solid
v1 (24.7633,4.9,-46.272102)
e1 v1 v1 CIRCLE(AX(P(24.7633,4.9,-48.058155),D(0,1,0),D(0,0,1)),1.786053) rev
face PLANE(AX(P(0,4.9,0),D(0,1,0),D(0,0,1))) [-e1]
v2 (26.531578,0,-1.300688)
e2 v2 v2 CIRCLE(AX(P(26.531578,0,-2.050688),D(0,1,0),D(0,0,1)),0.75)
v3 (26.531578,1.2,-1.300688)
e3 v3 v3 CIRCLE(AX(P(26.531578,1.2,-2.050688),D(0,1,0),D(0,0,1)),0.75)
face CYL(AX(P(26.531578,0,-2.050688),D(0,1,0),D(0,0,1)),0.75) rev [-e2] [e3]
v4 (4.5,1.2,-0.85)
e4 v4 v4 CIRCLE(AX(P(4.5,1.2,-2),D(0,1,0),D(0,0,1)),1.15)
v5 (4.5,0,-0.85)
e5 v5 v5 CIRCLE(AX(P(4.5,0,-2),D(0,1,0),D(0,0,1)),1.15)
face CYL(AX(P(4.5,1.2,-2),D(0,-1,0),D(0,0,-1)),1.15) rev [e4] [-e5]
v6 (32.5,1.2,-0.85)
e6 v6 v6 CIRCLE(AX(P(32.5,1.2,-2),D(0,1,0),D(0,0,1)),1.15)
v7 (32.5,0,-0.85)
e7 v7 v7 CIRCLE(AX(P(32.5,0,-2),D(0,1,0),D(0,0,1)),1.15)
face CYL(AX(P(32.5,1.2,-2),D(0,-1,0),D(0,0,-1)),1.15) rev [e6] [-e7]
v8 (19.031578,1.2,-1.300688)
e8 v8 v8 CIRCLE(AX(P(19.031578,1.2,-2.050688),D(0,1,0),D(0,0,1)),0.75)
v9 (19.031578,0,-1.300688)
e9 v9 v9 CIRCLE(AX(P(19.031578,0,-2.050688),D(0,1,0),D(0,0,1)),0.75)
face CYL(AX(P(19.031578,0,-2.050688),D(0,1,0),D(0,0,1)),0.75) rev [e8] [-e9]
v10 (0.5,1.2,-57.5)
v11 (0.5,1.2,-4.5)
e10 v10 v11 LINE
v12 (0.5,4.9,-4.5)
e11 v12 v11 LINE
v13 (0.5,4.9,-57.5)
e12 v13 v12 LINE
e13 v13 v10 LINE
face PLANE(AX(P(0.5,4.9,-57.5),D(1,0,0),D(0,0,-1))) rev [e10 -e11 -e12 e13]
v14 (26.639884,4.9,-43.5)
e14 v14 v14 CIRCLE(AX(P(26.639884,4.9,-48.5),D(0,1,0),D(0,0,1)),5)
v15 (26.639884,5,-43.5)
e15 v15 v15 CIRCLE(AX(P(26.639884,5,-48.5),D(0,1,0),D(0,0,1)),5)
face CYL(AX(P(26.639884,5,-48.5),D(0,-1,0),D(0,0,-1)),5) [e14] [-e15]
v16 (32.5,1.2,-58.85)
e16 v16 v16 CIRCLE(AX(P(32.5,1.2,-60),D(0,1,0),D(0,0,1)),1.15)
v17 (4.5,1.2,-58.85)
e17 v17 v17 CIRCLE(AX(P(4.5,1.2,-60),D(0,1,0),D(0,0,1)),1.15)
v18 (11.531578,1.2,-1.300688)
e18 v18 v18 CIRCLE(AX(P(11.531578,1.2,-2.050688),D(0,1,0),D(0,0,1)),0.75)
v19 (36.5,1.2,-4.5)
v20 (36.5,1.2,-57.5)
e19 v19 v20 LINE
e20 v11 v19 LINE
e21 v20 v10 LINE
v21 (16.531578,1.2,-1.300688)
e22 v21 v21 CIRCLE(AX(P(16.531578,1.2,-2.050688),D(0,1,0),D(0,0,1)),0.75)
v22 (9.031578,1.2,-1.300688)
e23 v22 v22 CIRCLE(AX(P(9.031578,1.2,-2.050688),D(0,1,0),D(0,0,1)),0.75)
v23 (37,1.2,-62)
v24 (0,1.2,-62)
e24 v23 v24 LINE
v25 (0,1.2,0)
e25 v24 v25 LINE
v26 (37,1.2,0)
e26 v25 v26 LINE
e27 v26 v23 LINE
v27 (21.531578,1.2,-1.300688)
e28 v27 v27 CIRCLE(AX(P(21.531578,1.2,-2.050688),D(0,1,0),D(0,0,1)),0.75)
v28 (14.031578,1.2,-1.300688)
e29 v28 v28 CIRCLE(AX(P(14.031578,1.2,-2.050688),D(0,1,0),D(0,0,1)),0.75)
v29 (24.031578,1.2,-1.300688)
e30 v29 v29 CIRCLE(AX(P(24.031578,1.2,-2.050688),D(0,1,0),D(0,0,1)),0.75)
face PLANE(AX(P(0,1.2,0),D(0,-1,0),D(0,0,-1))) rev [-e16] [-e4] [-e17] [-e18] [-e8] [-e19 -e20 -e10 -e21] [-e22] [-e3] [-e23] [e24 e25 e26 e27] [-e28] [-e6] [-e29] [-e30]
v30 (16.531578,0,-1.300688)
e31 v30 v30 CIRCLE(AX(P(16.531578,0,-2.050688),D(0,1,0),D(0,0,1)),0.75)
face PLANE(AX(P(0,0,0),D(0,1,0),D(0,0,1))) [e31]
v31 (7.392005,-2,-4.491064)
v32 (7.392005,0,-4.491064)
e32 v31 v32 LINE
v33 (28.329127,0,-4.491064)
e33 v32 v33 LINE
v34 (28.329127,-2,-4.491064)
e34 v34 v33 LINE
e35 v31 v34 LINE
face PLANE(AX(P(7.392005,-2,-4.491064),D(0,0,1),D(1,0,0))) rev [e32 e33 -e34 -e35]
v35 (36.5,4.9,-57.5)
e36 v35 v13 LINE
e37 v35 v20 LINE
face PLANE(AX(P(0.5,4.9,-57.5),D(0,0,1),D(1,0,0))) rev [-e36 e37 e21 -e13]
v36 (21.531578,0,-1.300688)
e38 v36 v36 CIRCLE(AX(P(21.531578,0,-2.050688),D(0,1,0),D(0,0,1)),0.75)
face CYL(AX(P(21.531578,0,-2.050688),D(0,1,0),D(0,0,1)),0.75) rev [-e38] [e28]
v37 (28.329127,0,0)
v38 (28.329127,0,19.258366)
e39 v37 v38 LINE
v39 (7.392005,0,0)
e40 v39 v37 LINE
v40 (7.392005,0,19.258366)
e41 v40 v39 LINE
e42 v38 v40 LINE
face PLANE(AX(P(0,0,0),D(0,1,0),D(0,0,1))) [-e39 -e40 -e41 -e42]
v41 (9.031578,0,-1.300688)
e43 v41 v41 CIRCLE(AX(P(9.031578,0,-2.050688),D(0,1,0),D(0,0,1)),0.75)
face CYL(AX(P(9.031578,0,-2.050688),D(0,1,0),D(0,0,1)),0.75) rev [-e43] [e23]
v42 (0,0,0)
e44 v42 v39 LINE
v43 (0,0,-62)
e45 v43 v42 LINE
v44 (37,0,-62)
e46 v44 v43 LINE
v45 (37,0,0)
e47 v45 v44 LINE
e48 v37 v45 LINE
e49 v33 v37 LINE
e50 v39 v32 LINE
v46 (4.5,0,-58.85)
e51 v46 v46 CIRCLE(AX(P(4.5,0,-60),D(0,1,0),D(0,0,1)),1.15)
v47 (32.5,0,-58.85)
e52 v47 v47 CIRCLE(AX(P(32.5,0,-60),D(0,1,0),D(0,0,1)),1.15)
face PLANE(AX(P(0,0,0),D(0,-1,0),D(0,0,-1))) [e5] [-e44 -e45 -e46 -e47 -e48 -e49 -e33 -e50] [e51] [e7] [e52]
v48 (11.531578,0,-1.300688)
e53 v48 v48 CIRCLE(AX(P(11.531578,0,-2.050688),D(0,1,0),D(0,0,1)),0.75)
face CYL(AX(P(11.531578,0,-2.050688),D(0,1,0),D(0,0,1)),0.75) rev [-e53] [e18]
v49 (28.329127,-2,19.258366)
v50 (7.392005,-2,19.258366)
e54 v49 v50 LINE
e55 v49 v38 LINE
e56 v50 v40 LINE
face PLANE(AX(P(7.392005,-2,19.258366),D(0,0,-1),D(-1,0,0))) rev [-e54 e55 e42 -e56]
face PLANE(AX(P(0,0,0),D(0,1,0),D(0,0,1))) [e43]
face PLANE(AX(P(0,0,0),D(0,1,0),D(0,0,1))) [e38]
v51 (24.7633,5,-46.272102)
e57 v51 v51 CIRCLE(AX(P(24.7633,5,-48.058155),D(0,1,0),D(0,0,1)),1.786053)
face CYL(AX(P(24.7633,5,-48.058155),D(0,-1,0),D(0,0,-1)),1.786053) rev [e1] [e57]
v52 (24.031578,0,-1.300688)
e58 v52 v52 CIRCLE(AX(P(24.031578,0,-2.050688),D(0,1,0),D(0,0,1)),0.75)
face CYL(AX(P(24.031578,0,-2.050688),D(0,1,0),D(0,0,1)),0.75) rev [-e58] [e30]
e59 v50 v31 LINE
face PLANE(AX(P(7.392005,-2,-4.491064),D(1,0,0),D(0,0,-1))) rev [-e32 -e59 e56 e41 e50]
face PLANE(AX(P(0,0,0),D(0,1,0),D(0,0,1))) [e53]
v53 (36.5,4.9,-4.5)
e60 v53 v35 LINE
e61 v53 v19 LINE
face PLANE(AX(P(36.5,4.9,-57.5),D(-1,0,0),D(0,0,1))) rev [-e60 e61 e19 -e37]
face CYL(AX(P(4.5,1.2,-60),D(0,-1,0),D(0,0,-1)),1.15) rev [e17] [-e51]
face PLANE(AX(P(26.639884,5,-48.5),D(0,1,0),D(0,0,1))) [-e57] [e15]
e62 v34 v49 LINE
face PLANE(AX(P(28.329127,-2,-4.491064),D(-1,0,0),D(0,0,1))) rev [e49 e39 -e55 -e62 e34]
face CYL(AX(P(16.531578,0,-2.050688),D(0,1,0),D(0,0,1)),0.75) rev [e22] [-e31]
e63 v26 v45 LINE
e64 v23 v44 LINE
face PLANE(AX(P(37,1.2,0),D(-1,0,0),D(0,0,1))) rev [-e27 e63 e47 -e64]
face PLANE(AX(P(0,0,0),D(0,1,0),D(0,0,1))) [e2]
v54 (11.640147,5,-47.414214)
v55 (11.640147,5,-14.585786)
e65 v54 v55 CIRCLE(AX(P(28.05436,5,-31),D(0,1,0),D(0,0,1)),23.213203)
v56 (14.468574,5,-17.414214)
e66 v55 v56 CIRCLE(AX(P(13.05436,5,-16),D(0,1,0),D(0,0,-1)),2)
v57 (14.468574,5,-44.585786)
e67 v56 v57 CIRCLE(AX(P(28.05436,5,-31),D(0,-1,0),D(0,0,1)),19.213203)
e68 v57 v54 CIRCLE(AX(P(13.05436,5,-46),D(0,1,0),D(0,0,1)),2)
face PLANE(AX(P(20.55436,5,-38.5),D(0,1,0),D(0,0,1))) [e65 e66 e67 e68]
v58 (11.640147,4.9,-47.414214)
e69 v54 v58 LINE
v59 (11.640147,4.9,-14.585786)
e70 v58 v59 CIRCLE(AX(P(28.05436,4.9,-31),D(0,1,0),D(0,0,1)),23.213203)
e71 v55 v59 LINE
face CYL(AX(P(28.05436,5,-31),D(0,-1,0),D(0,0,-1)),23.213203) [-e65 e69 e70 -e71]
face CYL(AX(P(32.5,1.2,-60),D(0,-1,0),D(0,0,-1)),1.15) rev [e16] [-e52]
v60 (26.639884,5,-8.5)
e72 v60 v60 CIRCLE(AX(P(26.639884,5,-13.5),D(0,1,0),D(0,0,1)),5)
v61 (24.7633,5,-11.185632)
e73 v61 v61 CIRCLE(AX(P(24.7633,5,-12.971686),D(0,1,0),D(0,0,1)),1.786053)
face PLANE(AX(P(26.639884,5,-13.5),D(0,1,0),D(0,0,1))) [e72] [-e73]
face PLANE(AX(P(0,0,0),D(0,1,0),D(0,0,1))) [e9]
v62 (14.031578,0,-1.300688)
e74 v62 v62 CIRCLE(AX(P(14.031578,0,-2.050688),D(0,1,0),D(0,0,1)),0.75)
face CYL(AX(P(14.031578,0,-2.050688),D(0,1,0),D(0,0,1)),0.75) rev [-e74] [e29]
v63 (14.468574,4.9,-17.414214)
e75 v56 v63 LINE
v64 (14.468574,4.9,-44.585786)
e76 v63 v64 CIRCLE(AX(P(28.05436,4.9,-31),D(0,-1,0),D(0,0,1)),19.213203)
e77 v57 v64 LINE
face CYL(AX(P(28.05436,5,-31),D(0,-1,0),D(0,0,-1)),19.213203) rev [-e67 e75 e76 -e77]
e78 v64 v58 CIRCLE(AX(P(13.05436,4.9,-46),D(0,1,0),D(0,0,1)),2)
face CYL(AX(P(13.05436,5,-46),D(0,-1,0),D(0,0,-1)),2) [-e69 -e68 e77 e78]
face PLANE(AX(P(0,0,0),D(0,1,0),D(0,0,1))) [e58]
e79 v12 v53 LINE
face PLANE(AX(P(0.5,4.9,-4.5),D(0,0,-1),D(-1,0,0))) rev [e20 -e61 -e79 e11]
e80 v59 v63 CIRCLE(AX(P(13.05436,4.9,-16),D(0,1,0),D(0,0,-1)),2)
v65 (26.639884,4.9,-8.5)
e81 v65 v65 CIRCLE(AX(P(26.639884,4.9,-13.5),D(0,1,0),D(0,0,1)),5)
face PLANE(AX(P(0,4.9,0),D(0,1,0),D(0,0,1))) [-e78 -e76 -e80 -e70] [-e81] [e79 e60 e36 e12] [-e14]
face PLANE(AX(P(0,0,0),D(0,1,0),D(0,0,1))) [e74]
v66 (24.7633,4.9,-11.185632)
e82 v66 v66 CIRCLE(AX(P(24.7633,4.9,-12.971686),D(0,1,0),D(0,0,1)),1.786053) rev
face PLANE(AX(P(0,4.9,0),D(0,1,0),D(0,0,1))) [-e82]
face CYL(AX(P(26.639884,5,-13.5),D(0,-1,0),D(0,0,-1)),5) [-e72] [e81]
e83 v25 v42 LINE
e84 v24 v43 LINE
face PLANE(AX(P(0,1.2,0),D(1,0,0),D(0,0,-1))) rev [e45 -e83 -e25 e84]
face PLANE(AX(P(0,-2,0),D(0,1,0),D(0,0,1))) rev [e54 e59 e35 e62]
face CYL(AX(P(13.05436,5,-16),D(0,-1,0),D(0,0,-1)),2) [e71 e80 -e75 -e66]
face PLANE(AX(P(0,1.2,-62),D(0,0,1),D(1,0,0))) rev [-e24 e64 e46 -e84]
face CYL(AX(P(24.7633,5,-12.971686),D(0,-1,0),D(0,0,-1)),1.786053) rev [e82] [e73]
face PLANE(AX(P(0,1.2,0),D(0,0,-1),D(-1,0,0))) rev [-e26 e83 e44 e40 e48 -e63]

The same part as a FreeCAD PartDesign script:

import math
import FreeCAD as App
import Part
import Sketcher

V = App.Vector


def add_polygon(sketch, points):
    """Adds a closed chain of lines whose ends are joined by coincident constraints."""
    first, n = sketch.GeometryCount, len(points)
    for a, b in zip(points, points[1:] + points[:1]):
        sketch.addGeometry(Part.LineSegment(App.Vector(*a, 0), App.Vector(*b, 0)), False)
    for i in range(n):
        sketch.addConstraint(Sketcher.Constraint("Coincident", first + i, 2, first + (i + 1) % n, 1))

doc = App.newDocument("Part")
body = doc.addObject("PartDesign::Body", "Body")

# Sketch on XZ plane
sketch1 = doc.addObject("Sketcher::SketchObject", "Sketch")
body.addObject(sketch1)
sketch1.AttachmentSupport = (doc.XZ_Plane, [""])
sketch1.MapMode = "FlatFace"
add_polygon(sketch1, [(0, -62), (0, 0), (37, 0), (37, -62)])  # lines 0-3
sketch1.addGeometry(Part.Circle(V(4.5, -2, 0), V(0, 0, 1), 1.15), False)  # 4
sketch1.addGeometry(Part.Circle(V(32.5, -2, 0), V(0, 0, 1), 1.15), False)  # 5
sketch1.addGeometry(Part.Circle(V(4.5, -60, 0), V(0, 0, 1), 1.15), False)  # 6
sketch1.addGeometry(Part.Circle(V(32.5, -60, 0), V(0, 0, 1), 1.15), False)  # 7
sketch1.addConstraint(Sketcher.Constraint("Vertical", 0))
sketch1.addConstraint(Sketcher.Constraint("Horizontal", 1))
sketch1.addConstraint(Sketcher.Constraint("Vertical", 2))
sketch1.addConstraint(Sketcher.Constraint("Horizontal", 3))
sketch1.addConstraint(Sketcher.Constraint("Coincident", 0, 2, -1, 1))
sketch1.addConstraint(Sketcher.Constraint("Equal", 4, 5))
sketch1.addConstraint(Sketcher.Constraint("Equal", 5, 6))
sketch1.addConstraint(Sketcher.Constraint("Equal", 6, 7))
sketch1.addConstraint(Sketcher.Constraint("Horizontal", 4, 3, 5, 3))
sketch1.addConstraint(Sketcher.Constraint("Horizontal", 6, 3, 7, 3))
sketch1.addConstraint(Sketcher.Constraint("Vertical", 4, 3, 6, 3))
sketch1.addConstraint(Sketcher.Constraint("Vertical", 5, 3, 7, 3))
sketch1.addConstraint(Sketcher.Constraint("Diameter", 4, 2.3))
sketch1.addConstraint(Sketcher.Constraint("DistanceX", 1, 1, 1, 2, 37.0))
sketch1.addConstraint(Sketcher.Constraint("DistanceY", 0, 1, 0, 2, 62.0))
sketch1.addConstraint(Sketcher.Constraint("DistanceY", 4, 3, -1, 1, 2.0))
sketch1.addConstraint(Sketcher.Constraint("DistanceY", 6, 3, -1, 1, 60.0))
sketch1.addConstraint(Sketcher.Constraint("DistanceX", 4, 3, 5, 3, 28.0))
sketch1.addConstraint(Sketcher.Constraint("DistanceX", -1, 1, 4, 3, 4.5))
pad1 = doc.addObject("PartDesign::Pad", "Pad")
body.addObject(pad1)
pad1.Profile = sketch1
pad1.Length = 1.2
pad1.Reversed = True

# Sketch on XZ plane
sketch2 = doc.addObject("Sketcher::SketchObject", "Sketch001")
body.addObject(sketch2)
sketch2.AttachmentSupport = (doc.XZ_Plane, [""])
sketch2.MapMode = "FlatFace"
sketch2.AttachmentOffset = App.Placement(V(0, 0, -1.2), App.Rotation())
add_polygon(sketch2, [(0.5, -57.5), (0.5, -4.5), (36.5, -4.5), (36.5, -57.5)])  # lines 0-3
sketch2.addConstraint(Sketcher.Constraint("Vertical", 0))
sketch2.addConstraint(Sketcher.Constraint("Horizontal", 1))
sketch2.addConstraint(Sketcher.Constraint("Vertical", 2))
sketch2.addConstraint(Sketcher.Constraint("Horizontal", 3))
sketch2.addConstraint(Sketcher.Constraint("DistanceX", 1, 1, 1, 2, 36.0))
sketch2.addConstraint(Sketcher.Constraint("DistanceY", 0, 1, 0, 2, 53.0))
sketch2.addConstraint(Sketcher.Constraint("DistanceX", -1, 1, 0, 2, 0.5))
sketch2.addConstraint(Sketcher.Constraint("DistanceY", 0, 2, -1, 1, 4.5))
pad2 = doc.addObject("PartDesign::Pad", "Pad001")
body.addObject(pad2)
pad2.Profile = sketch2
pad2.Length = 3.7
pad2.Reversed = True

# Sketch on XZ plane
sketch3 = doc.addObject("Sketcher::SketchObject", "Sketch002")
body.addObject(sketch3)
sketch3.AttachmentSupport = (doc.XZ_Plane, [""])
sketch3.MapMode = "FlatFace"
sketch3.AttachmentOffset = App.Placement(V(0, 0, -1.2), App.Rotation())
sketch3.addGeometry(Part.Circle(V(9.031578, -2.050688, 0), V(0, 0, 1), 0.75), False)
sketch3.addGeometry(Part.Circle(V(11.531578, -2.050688, 0), V(0, 0, 1), 0.75), False)
sketch3.addGeometry(Part.Circle(V(14.031578, -2.050688, 0), V(0, 0, 1), 0.75), False)
sketch3.addGeometry(Part.Circle(V(16.531578, -2.050688, 0), V(0, 0, 1), 0.75), False)
sketch3.addGeometry(Part.Circle(V(19.031578, -2.050688, 0), V(0, 0, 1), 0.75), False)
sketch3.addGeometry(Part.Circle(V(21.531578, -2.050688, 0), V(0, 0, 1), 0.75), False)
sketch3.addGeometry(Part.Circle(V(24.031578, -2.050688, 0), V(0, 0, 1), 0.75), False)
sketch3.addGeometry(Part.Circle(V(26.531578, -2.050688, 0), V(0, 0, 1), 0.75), False)
sketch3.addConstraint(Sketcher.Constraint("Equal", 0, 1))
sketch3.addConstraint(Sketcher.Constraint("Equal", 1, 2))
sketch3.addConstraint(Sketcher.Constraint("Equal", 2, 3))
sketch3.addConstraint(Sketcher.Constraint("Equal", 3, 4))
sketch3.addConstraint(Sketcher.Constraint("Equal", 4, 5))
sketch3.addConstraint(Sketcher.Constraint("Equal", 5, 6))
sketch3.addConstraint(Sketcher.Constraint("Equal", 6, 7))
sketch3.addConstraint(Sketcher.Constraint("Horizontal", 0, 3, 1, 3))
sketch3.addConstraint(Sketcher.Constraint("Horizontal", 1, 3, 2, 3))
sketch3.addConstraint(Sketcher.Constraint("Horizontal", 2, 3, 3, 3))
sketch3.addConstraint(Sketcher.Constraint("Horizontal", 3, 3, 4, 3))
sketch3.addConstraint(Sketcher.Constraint("Horizontal", 4, 3, 5, 3))
sketch3.addConstraint(Sketcher.Constraint("Horizontal", 5, 3, 6, 3))
sketch3.addConstraint(Sketcher.Constraint("Horizontal", 6, 3, 7, 3))
sketch3.addConstraint(Sketcher.Constraint("Diameter", 0, 1.5))
sketch3.addConstraint(Sketcher.Constraint("DistanceX", 0, 3, 2, 3, 5.0))
sketch3.addConstraint(Sketcher.Constraint("DistanceX", 1, 3, 3, 3, 5.0))
sketch3.addConstraint(Sketcher.Constraint("DistanceX", 2, 3, 4, 3, 5.0))
sketch3.addConstraint(Sketcher.Constraint("DistanceX", 3, 3, 5, 3, 5.0))
sketch3.addConstraint(Sketcher.Constraint("DistanceX", 4, 3, 6, 3, 5.0))
sketch3.addConstraint(Sketcher.Constraint("DistanceX", 5, 3, 7, 3, 5.0))
sketch3.addConstraint(Sketcher.Constraint("DistanceX", 0, 3, 1, 3, 2.5))
sketch3.addConstraint(Sketcher.Constraint("DistanceX", -1, 1, 0, 3, 9.031578))
sketch3.addConstraint(Sketcher.Constraint("DistanceY", 0, 3, -1, 1, 2.050688))
pocket1 = doc.addObject("PartDesign::Pocket", "Pocket")
body.addObject(pocket1)
pocket1.Profile = sketch3
pocket1.Type = "ThroughAll"
pocket1.Reversed = True

# Sketch on XZ plane
sketch4 = doc.addObject("Sketcher::SketchObject", "Sketch003")
body.addObject(sketch4)
sketch4.AttachmentSupport = (doc.XZ_Plane, [""])
sketch4.MapMode = "FlatFace"
sketch4.AttachmentOffset = App.Placement(V(0, 0, -4.9), App.Rotation())
sketch4.addGeometry(Part.Circle(V(26.639884, -48.5, 0), V(0, 0, 1), 5), False)
sketch4.addGeometry(Part.Circle(V(24.7633, -48.058155, 0), V(0, 0, 1), 1.786053), False)
sketch4.addGeometry(Part.Circle(V(26.639884, -13.5, 0), V(0, 0, 1), 5), False)
sketch4.addGeometry(Part.Circle(V(24.7633, -12.971686, 0), V(0, 0, 1), 1.786053), False)
sketch4.addGeometry(Part.ArcOfCircle(Part.Circle(V(28.05436, -31, 0), V(0, 0, 1), 23.213203), math.radians(135), math.radians(225)), False)
sketch4.addGeometry(Part.ArcOfCircle(Part.Circle(V(13.05436, -16, 0), V(0, 0, 1), 2), math.radians(-45), math.radians(135)), False)
sketch4.addGeometry(Part.ArcOfCircle(Part.Circle(V(28.05436, -31, 0), V(0, 0, 1), 19.213203), math.radians(135), math.radians(225)), False)
sketch4.addGeometry(Part.ArcOfCircle(Part.Circle(V(13.05436, -46, 0), V(0, 0, 1), 2), math.radians(-135), math.radians(45)), False)
sketch4.addConstraint(Sketcher.Constraint("Tangent", 4, 1, 5, 2))
sketch4.addConstraint(Sketcher.Constraint("Tangent", 5, 1, 6, 1))
sketch4.addConstraint(Sketcher.Constraint("Tangent", 6, 2, 7, 2))
sketch4.addConstraint(Sketcher.Constraint("Tangent", 7, 1, 4, 2))
sketch4.addConstraint(Sketcher.Constraint("Coincident", 6, 3, 4, 3))
sketch4.addConstraint(Sketcher.Constraint("Equal", 0, 2))
sketch4.addConstraint(Sketcher.Constraint("Equal", 1, 3))
sketch4.addConstraint(Sketcher.Constraint("Vertical", 0, 3, 2, 3))
sketch4.addConstraint(Sketcher.Constraint("Vertical", 1, 3, 3, 3))
sketch4.addConstraint(Sketcher.Constraint("Vertical", 5, 3, 7, 3))
sketch4.addConstraint(Sketcher.Constraint("Diameter", 0, 10.0))
sketch4.addConstraint(Sketcher.Constraint("Radius", 5, 2.0))
sketch4.addConstraint(Sketcher.Constraint("DistanceY", 4, 3, -1, 1, 31.0))
sketch4.addConstraint(Sketcher.Constraint("DistanceY", 5, 3, -1, 1, 16.0))
sketch4.addConstraint(Sketcher.Constraint("DistanceY", 0, 3, 2, 3, 35.0))
sketch4.addConstraint(Sketcher.Constraint("DistanceX", 5, 3, 4, 3, 15.0))
sketch4.addConstraint(Sketcher.Constraint("DistanceY", 0, 3, -1, 1, 48.5))
sketch4.addConstraint(Sketcher.Constraint("Diameter", 1, 3.572106))
sketch4.addConstraint(Sketcher.Constraint("DistanceX", -1, 1, 1, 3, 24.7633))
sketch4.addConstraint(Sketcher.Constraint("DistanceY", 4, 1, 3, 3, 1.614101))
sketch4.addConstraint(Sketcher.Constraint("DistanceX", -1, 1, 4, 3, 28.05436))
sketch4.addConstraint(Sketcher.Constraint("DistanceY", 1, 3, 3, 3, 35.08647))
sketch4.addConstraint(Sketcher.Constraint("DistanceX", 5, 1, 2, 3, 12.17131))
pad3 = doc.addObject("PartDesign::Pad", "Pad002")
body.addObject(pad3)
pad3.Profile = sketch4
pad3.Length = 0.1
pad3.Reversed = True

# Sketch on XZ plane
sketch5 = doc.addObject("Sketcher::SketchObject", "Sketch004")
body.addObject(sketch5)
sketch5.AttachmentSupport = (doc.XZ_Plane, [""])
sketch5.MapMode = "FlatFace"
add_polygon(sketch5, [(7.392005, 19.258366), (7.392005, -4.491064), (28.329127, -4.491064), (28.329127, 19.258366)])  # lines 0-3
sketch5.addConstraint(Sketcher.Constraint("Vertical", 0))
sketch5.addConstraint(Sketcher.Constraint("Horizontal", 1))
sketch5.addConstraint(Sketcher.Constraint("Vertical", 2))
sketch5.addConstraint(Sketcher.Constraint("Horizontal", 3))
sketch5.addConstraint(Sketcher.Constraint("DistanceY", 0, 2, 0, 1, 23.74943))
sketch5.addConstraint(Sketcher.Constraint("DistanceX", 1, 1, 1, 2, 20.937122))
sketch5.addConstraint(Sketcher.Constraint("DistanceX", -1, 1, 0, 2, 7.392005))
sketch5.addConstraint(Sketcher.Constraint("DistanceY", 0, 2, -1, 1, 4.491064))
pad4 = doc.addObject("PartDesign::Pad", "Pad003")
body.addObject(pad4)
pad4.Profile = sketch5
pad4.Length = 2

doc.recompute()
